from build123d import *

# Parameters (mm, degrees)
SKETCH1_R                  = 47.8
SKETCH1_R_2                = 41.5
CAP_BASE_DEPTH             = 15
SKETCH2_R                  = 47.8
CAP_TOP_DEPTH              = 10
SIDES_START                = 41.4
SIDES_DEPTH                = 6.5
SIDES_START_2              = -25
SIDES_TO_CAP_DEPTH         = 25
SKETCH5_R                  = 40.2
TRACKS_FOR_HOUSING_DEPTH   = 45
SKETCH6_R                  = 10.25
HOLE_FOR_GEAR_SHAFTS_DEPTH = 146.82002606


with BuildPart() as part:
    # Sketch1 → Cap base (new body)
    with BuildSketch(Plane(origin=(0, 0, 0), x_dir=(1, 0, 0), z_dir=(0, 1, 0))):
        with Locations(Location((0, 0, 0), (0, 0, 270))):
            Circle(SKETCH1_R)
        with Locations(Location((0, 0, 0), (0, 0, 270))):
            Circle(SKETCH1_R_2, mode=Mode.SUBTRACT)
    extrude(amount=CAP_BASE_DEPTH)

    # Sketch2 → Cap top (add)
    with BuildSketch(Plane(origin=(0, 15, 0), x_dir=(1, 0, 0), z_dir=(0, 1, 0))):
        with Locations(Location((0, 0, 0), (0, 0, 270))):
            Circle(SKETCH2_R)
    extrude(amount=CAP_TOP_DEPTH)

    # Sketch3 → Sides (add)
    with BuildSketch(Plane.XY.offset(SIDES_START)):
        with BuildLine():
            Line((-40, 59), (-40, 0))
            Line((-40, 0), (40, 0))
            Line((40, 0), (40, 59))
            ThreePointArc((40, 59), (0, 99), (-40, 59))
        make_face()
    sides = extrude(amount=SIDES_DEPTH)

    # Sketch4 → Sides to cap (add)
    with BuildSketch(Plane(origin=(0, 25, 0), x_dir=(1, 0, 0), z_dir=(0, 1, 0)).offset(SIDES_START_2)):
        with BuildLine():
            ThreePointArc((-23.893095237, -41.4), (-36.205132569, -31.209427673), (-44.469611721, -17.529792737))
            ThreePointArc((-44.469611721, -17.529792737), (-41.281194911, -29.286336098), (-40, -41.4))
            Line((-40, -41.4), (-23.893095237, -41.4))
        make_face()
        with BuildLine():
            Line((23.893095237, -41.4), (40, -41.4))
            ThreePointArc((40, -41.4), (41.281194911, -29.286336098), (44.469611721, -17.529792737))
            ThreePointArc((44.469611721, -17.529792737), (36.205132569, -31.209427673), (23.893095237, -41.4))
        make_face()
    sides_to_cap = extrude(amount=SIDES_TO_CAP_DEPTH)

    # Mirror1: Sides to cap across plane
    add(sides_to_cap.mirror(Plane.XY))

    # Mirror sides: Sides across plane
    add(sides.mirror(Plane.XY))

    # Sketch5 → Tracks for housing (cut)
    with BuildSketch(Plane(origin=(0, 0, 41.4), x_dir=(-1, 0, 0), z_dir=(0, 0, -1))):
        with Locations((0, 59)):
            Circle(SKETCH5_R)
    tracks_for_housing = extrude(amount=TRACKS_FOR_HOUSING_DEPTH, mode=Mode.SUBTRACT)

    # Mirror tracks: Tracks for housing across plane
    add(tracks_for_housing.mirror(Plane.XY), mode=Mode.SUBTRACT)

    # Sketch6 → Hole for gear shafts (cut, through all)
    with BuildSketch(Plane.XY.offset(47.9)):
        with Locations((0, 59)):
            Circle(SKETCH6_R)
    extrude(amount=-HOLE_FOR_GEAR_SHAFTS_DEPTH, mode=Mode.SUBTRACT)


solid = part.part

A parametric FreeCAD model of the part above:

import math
import FreeCAD as App
import Part
import Sketcher

doc = App.newDocument("Part")
body = doc.addObject("PartDesign::Body", "Body")

# Sketch on XZ plane
sketch1 = doc.addObject("Sketcher::SketchObject", "Sketch")
body.addObject(sketch1)
sketch1.AttachmentSupport = (doc.XZ_Plane, [""])
sketch1.MapMode = "FlatFace"
sketch1.addGeometry(Part.Circle(App.Vector(0, 0, 0), App.Vector(0, 0, 1), 47.8), False)
sketch1.addGeometry(Part.Circle(App.Vector(0, 0, 0), App.Vector(0, 0, 1), 41.5), False)
sketch1.addConstraint(Sketcher.Constraint("Coincident", 0, 3, -1, 1))
sketch1.addConstraint(Sketcher.Constraint("Coincident", 1, 3, -1, 1))
sketch1.addConstraint(Sketcher.Constraint("Diameter", 1, 83.0))
sketch1.addConstraint(Sketcher.Constraint("Diameter", 0, 95.6))
pad1 = doc.addObject("PartDesign::Pad", "Pad")
body.addObject(pad1)
pad1.Profile = sketch1
pad1.Length = 15
pad1.Reversed = True

# Sketch on XZ plane
sketch2 = doc.addObject("Sketcher::SketchObject", "Sketch001")
body.addObject(sketch2)
sketch2.AttachmentSupport = (doc.XZ_Plane, [""])
sketch2.MapMode = "FlatFace"
sketch2.AttachmentOffset = App.Placement(App.Vector(0, 0, -15), App.Rotation())
sketch2.addGeometry(Part.Circle(App.Vector(0, 0, 0), App.Vector(0, 0, 1), 47.8), False)
sketch2.addConstraint(Sketcher.Constraint("Coincident", 0, 3, -1, 1))
sketch2.addConstraint(Sketcher.Constraint("Diameter", 0, 95.6))
pad2 = doc.addObject("PartDesign::Pad", "Pad001")
body.addObject(pad2)
pad2.Profile = sketch2
pad2.Length = 10
pad2.Reversed = True

# Sketch on XY plane
sketch3 = doc.addObject("Sketcher::SketchObject", "Sketch002")
body.addObject(sketch3)
sketch3.AttachmentSupport = (doc.XY_Plane, [""])
sketch3.MapMode = "FlatFace"
sketch3.AttachmentOffset = App.Placement(App.Vector(0, 0, 41.4), App.Rotation())
sketch3.addGeometry(Part.LineSegment(App.Vector(-40, 59, 0), App.Vector(-40, 0, 0)), False)
sketch3.addGeometry(Part.LineSegment(App.Vector(-40, 0, 0), App.Vector(40, 0, 0)), False)
sketch3.addGeometry(Part.LineSegment(App.Vector(40, 0, 0), App.Vector(40, 59, 0)), False)
sketch3.addGeometry(Part.ArcOfCircle(Part.Circle(App.Vector(0, 59, 0), App.Vector(0, 0, 1), 40), math.radians(0), math.radians(180)), False)
sketch3.addConstraint(Sketcher.Constraint("Coincident", 0, 2, 1, 1))
sketch3.addConstraint(Sketcher.Constraint("Coincident", 1, 2, 2, 1))
sketch3.addConstraint(Sketcher.Constraint("Tangent", 2, 2, 3, 1))
sketch3.addConstraint(Sketcher.Constraint("Tangent", 3, 2, 0, 1))
sketch3.addConstraint(Sketcher.Constraint("Vertical", 0))
sketch3.addConstraint(Sketcher.Constraint("Horizontal", 1))
sketch3.addConstraint(Sketcher.Constraint("Vertical", 2))
sketch3.addConstraint(Sketcher.Constraint("Symmetric", 0, 2, 1, 2, -1, 1))
sketch3.addConstraint(Sketcher.Constraint("Radius", 3, 40.0))
sketch3.addConstraint(Sketcher.Constraint("DistanceY", 0, 2, 0, 1, 59.0))
pad3 = doc.addObject("PartDesign::Pad", "Pad002")
body.addObject(pad3)
pad3.Profile = sketch3
pad3.Length = 6.5

# Sketch on XZ plane
sketch4 = doc.addObject("Sketcher::SketchObject", "Sketch003")
body.addObject(sketch4)
sketch4.AttachmentSupport = (doc.XZ_Plane, [""])
sketch4.MapMode = "FlatFace"
sketch4.addGeometry(Part.ArcOfCircle(Part.Circle(App.Vector(0, 0, 0), App.Vector(0, 0, 1), 47.8), math.radians(119.990444), math.radians(158.485784)), False)
sketch4.addGeometry(Part.ArcOfCircle(Part.Circle(App.Vector(-116.446058, 43.36069, 0), App.Vector(0, 0, 1), 76.471198), math.radians(-19.742041), math.radians(-1.469201)), False)
sketch4.addGeometry(Part.LineSegment(App.Vector(-40, 41.4, 0), App.Vector(-23.893095, 41.4, 0)), False)
sketch4.addGeometry(Part.LineSegment(App.Vector(23.893095, 41.4, 0), App.Vector(40, 41.4, 0)), False)
sketch4.addGeometry(Part.ArcOfCircle(Part.Circle(App.Vector(116.446058, 43.36069, 0), App.Vector(0, 0, 1), 76.471198), math.radians(-178.530799), math.radians(-160.257959)), False)
sketch4.addGeometry(Part.ArcOfCircle(Part.Circle(App.Vector(0, 0, 0), App.Vector(0, 0, 1), 47.8), math.radians(21.514216), math.radians(60.009556)), False)
sketch4.addConstraint(Sketcher.Constraint("Coincident", 0, 2, 1, 1))
sketch4.addConstraint(Sketcher.Constraint("Coincident", 1, 2, 2, 1))
sketch4.addConstraint(Sketcher.Constraint("Coincident", 2, 2, 0, 1))
sketch4.addConstraint(Sketcher.Constraint("Coincident", 3, 2, 4, 1))
sketch4.addConstraint(Sketcher.Constraint("Coincident", 4, 2, 5, 1))
sketch4.addConstraint(Sketcher.Constraint("Coincident", 5, 2, 3, 1))
sketch4.addConstraint(Sketcher.Constraint("Horizontal", 2))
sketch4.addConstraint(Sketcher.Constraint("Horizontal", 3))
sketch4.addConstraint(Sketcher.Constraint("Coincident", 0, 3, -1, 1))
sketch4.addConstraint(Sketcher.Constraint("Coincident", 5, 3, -1, 1))
sketch4.addConstraint(Sketcher.Constraint("Equal", 1, 4))
sketch4.addConstraint(Sketcher.Constraint("Equal", 0, 5))
sketch4.addConstraint(Sketcher.Constraint("Symmetric", 1, 3, 4, 3, -2))
sketch4.addConstraint(Sketcher.Constraint("Horizontal", 2, 2, 3, 2))
sketch4.addConstraint(Sketcher.Constraint("Radius", 0, 47.8))
sketch4.addConstraint(Sketcher.Constraint("DistanceX", 1, 2, -1, 1, 40.0))
sketch4.addConstraint(Sketcher.Constraint("DistanceY", -1, 1, 1, 2, 41.4))
sketch4.addConstraint(Sketcher.Constraint("Radius", 1, 76.471198))
sketch4.addConstraint(Sketcher.Constraint("DistanceY", -1, 1, 1, 3, 43.36069))
pad4 = doc.addObject("PartDesign::Pad", "Pad003")
body.addObject(pad4)
pad4.Profile = sketch4
pad4.Length = 25
pad4.Reversed = True
doc.recompute()

mirrored = doc.addObject("PartDesign::Mirrored", "Mirrored")
body.addObject(mirrored)
mirrored.Originals = [pad4]
mirrored.MirrorPlane = (doc.XY_Plane, [""])
body.Tip = mirrored
doc.recompute()

mirrored2 = doc.addObject("PartDesign::Mirrored", "Mirrored001")
body.addObject(mirrored2)
mirrored2.Originals = [pad3]
mirrored2.MirrorPlane = (doc.XY_Plane, [""])
body.Tip = mirrored2

# Sketch on XY plane
sketch5 = doc.addObject("Sketcher::SketchObject", "Sketch004")
body.addObject(sketch5)
sketch5.AttachmentSupport = (doc.XY_Plane, [""])
sketch5.MapMode = "FlatFace"
sketch5.AttachmentOffset = App.Placement(App.Vector(0, 0, 41.4), App.Rotation())
sketch5.addGeometry(Part.Circle(App.Vector(0, 59, 0), App.Vector(0, 0, 1), 40.2), False)
sketch5.addConstraint(Sketcher.Constraint("PointOnObject", 0, 3, -2))
sketch5.addConstraint(Sketcher.Constraint("Diameter", 0, 80.4))
sketch5.addConstraint(Sketcher.Constraint("DistanceY", -1, 1, 0, 3, 59.0))
pocket1 = doc.addObject("PartDesign::Pocket", "Pocket")
body.addObject(pocket1)
pocket1.Profile = sketch5
pocket1.Length = 45
doc.recompute()

mirrored3 = doc.addObject("PartDesign::Mirrored", "Mirrored002")
body.addObject(mirrored3)
mirrored3.Originals = [pocket1]
mirrored3.MirrorPlane = (doc.XY_Plane, [""])
body.Tip = mirrored3

# Sketch on XY plane
sketch6 = doc.addObject("Sketcher::SketchObject", "Sketch005")
body.addObject(sketch6)
sketch6.AttachmentSupport = (doc.XY_Plane, [""])
sketch6.MapMode = "FlatFace"
sketch6.AttachmentOffset = App.Placement(App.Vector(0, 0, 47.9), App.Rotation())
sketch6.addGeometry(Part.Circle(App.Vector(0, 59, 0), App.Vector(0, 0, 1), 10.25), False)
sketch6.addConstraint(Sketcher.Constraint("PointOnObject", 0, 3, -2))
sketch6.addConstraint(Sketcher.Constraint("Diameter", 0, 20.5))
sketch6.addConstraint(Sketcher.Constraint("DistanceY", -1, 1, 0, 3, 59.0))
pocket2 = doc.addObject("PartDesign::Pocket", "Pocket001")
body.addObject(pocket2)
pocket2.Profile = sketch6
pocket2.Type = "ThroughAll"

doc.recompute()
